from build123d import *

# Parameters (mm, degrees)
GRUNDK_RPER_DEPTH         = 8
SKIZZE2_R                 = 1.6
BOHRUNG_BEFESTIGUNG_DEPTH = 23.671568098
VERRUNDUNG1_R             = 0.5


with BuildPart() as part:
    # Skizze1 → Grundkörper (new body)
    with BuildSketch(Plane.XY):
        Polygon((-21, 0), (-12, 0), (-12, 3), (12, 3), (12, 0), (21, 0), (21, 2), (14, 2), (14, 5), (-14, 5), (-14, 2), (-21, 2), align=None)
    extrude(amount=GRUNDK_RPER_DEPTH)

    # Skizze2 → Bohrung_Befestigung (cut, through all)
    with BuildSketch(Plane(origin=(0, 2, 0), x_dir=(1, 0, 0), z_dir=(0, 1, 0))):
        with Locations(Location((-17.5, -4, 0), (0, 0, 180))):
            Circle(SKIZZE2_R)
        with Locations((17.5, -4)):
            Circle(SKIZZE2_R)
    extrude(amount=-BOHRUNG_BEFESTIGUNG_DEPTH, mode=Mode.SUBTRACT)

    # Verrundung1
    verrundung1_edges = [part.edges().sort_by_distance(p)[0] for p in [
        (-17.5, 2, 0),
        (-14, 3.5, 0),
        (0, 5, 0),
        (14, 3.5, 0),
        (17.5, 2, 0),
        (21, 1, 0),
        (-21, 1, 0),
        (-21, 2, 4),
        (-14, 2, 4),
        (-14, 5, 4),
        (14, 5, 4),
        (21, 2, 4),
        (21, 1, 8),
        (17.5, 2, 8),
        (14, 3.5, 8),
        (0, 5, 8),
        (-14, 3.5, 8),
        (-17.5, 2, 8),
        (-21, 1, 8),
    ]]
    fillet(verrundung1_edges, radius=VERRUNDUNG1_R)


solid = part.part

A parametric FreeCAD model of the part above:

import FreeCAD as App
import Part
import Sketcher
Q = App.Units.Quantity


def edges_at(feature, points):
    """Names of the edges that pass closest to the given points."""
    edges = feature.Shape.Edges
    near = lambda p: min(range(len(edges)), key=lambda i: edges[i].distToShape(Part.Vertex(*p))[0])
    return sorted({f"Edge{near(p) + 1}" for p in points})

doc = App.newDocument("Part")
body = doc.addObject("PartDesign::Body", "Body")

# Sketch on XY plane
sketch1 = doc.addObject("Sketcher::SketchObject", "Sketch")
body.addObject(sketch1)
sketch1.AttachmentSupport = (doc.XY_Plane, [""])
sketch1.MapMode = "FlatFace"
sketch1.addGeometry(Part.LineSegment(App.Vector(-21, 0, 0), App.Vector(-12, 0, 0)), False)
sketch1.addGeometry(Part.LineSegment(App.Vector(-12, 0, 0), App.Vector(-12, 3, 0)), False)
sketch1.addGeometry(Part.LineSegment(App.Vector(-12, 3, 0), App.Vector(12, 3, 0)), False)
sketch1.addGeometry(Part.LineSegment(App.Vector(12, 3, 0), App.Vector(12, 0, 0)), False)
sketch1.addGeometry(Part.LineSegment(App.Vector(12, 0, 0), App.Vector(21, 0, 0)), False)
sketch1.addGeometry(Part.LineSegment(App.Vector(21, 0, 0), App.Vector(21, 2, 0)), False)
sketch1.addGeometry(Part.LineSegment(App.Vector(21, 2, 0), App.Vector(14, 2, 0)), False)
sketch1.addGeometry(Part.LineSegment(App.Vector(14, 2, 0), App.Vector(14, 5, 0)), False)
sketch1.addGeometry(Part.LineSegment(App.Vector(14, 5, 0), App.Vector(-14, 5, 0)), False)
sketch1.addGeometry(Part.LineSegment(App.Vector(-14, 5, 0), App.Vector(-14, 2, 0)), False)
sketch1.addGeometry(Part.LineSegment(App.Vector(-14, 2, 0), App.Vector(-21, 2, 0)), False)
sketch1.addGeometry(Part.LineSegment(App.Vector(-21, 2, 0), App.Vector(-21, 0, 0)), False)
sketch1.addConstraint(Sketcher.Constraint("Coincident", 0, 2, 1, 1))
sketch1.addConstraint(Sketcher.Constraint("Coincident", 1, 2, 2, 1))
sketch1.addConstraint(Sketcher.Constraint("Coincident", 2, 2, 3, 1))
sketch1.addConstraint(Sketcher.Constraint("Coincident", 3, 2, 4, 1))
sketch1.addConstraint(Sketcher.Constraint("Coincident", 4, 2, 5, 1))
sketch1.addConstraint(Sketcher.Constraint("Coincident", 5, 2, 6, 1))
sketch1.addConstraint(Sketcher.Constraint("Coincident", 6, 2, 7, 1))
sketch1.addConstraint(Sketcher.Constraint("Coincident", 7, 2, 8, 1))
sketch1.addConstraint(Sketcher.Constraint("Coincident", 8, 2, 9, 1))
sketch1.addConstraint(Sketcher.Constraint("Coincident", 9, 2, 10, 1))
sketch1.addConstraint(Sketcher.Constraint("Coincident", 10, 2, 11, 1))
sketch1.addConstraint(Sketcher.Constraint("Coincident", 11, 2, 0, 1))
sketch1.addConstraint(Sketcher.Constraint("Horizontal", 0))
sketch1.addConstraint(Sketcher.Constraint("Vertical", 1))
sketch1.addConstraint(Sketcher.Constraint("Horizontal", 2))
sketch1.addConstraint(Sketcher.Constraint("Vertical", 3))
sketch1.addConstraint(Sketcher.Constraint("Horizontal", 4))
sketch1.addConstraint(Sketcher.Constraint("Vertical", 5))
sketch1.addConstraint(Sketcher.Constraint("Horizontal", 6))
sketch1.addConstraint(Sketcher.Constraint("Vertical", 7))
sketch1.addConstraint(Sketcher.Constraint("Horizontal", 8))
sketch1.addConstraint(Sketcher.Constraint("Vertical", 9))
sketch1.addConstraint(Sketcher.Constraint("Horizontal", 10))
sketch1.addConstraint(Sketcher.Constraint("Vertical", 11))
sketch1.addConstraint(Sketcher.Constraint("Symmetric", 0, 2, 3, 2, -1, 1))
sketch1.addConstraint(Sketcher.Constraint("Symmetric", 6, 2, 9, 2, -2))
sketch1.addConstraint(Sketcher.Constraint("Symmetric", 4, 2, 11, 2, -2))
sketch1.addConstraint(Sketcher.Constraint("Equal", 3, 7))
sketch1.addConstraint(Sketcher.Constraint("DistanceX", 0, 1, 0, 2, Q("9 mm")))
sketch1.addConstraint(Sketcher.Constraint("DistanceX", 2, 1, 2, 2, Q("24 mm")))
sketch1.addConstraint(Sketcher.Constraint("DistanceX", 6, 2, 6, 1, Q("7 mm")))
sketch1.addConstraint(Sketcher.Constraint("DistanceY", 1, 1, 1, 2, Q("3 mm")))
sketch1.addConstraint(Sketcher.Constraint("DistanceY", 5, 1, 5, 2, Q("2 mm")))
pad1 = doc.addObject("PartDesign::Pad", "Pad")
body.addObject(pad1)
pad1.Profile = sketch1
pad1.Length = 8

# Sketch on XZ plane
sketch2 = doc.addObject("Sketcher::SketchObject", "Sketch001")
body.addObject(sketch2)
sketch2.AttachmentSupport = (doc.XZ_Plane, [""])
sketch2.MapMode = "FlatFace"
sketch2.AttachmentOffset = App.Placement(App.Vector(0, 0, -2), App.Rotation())
sketch2.addGeometry(Part.Circle(App.Vector(-17.5, 4, 0), App.Vector(0, 0, 1), 1.6), False)
sketch2.addGeometry(Part.Circle(App.Vector(17.5, 4, 0), App.Vector(0, 0, 1), 1.6), False)
sketch2.addConstraint(Sketcher.Constraint("Equal", 0, 1))
sketch2.addConstraint(Sketcher.Constraint("Symmetric", 0, 3, 1, 3, -2))
sketch2.addConstraint(Sketcher.Constraint("Diameter", 0, Q("3.2 mm")))
sketch2.addConstraint(Sketcher.Constraint("DistanceY", -1, 1, 0, 3, Q("4 mm")))
sketch2.addConstraint(Sketcher.Constraint("DistanceX", 0, 3, 1, 3, Q("35 mm")))
pocket1 = doc.addObject("PartDesign::Pocket", "Pocket")
body.addObject(pocket1)
pocket1.Profile = sketch2
pocket1.Type = "ThroughAll"
pocket1.Reversed = True
doc.recompute()

fillet = doc.addObject("PartDesign::Fillet", "Fillet")
body.addObject(fillet)
fillet.Base = (pocket1, edges_at(pocket1, [
    (-17.5, 2, 0),
    (-14, 3.5, 0),
    (0, 5, 0),
    (14, 3.5, 0),
    (17.5, 2, 0),
    (21, 1, 0),
    (-21, 1, 0),
    (-21, 2, 4),
    (-14, 2, 4),
    (-14, 5, 4),
    (14, 5, 4),
    (21, 2, 4),
    (21, 1, 8),
    (17.5, 2, 8),
    (14, 3.5, 8),
    (0, 5, 8),
    (-14, 3.5, 8),
    (-17.5, 2, 8),
    (-21, 1, 8),
]))
fillet.Radius = 0.5

doc.recompute()
